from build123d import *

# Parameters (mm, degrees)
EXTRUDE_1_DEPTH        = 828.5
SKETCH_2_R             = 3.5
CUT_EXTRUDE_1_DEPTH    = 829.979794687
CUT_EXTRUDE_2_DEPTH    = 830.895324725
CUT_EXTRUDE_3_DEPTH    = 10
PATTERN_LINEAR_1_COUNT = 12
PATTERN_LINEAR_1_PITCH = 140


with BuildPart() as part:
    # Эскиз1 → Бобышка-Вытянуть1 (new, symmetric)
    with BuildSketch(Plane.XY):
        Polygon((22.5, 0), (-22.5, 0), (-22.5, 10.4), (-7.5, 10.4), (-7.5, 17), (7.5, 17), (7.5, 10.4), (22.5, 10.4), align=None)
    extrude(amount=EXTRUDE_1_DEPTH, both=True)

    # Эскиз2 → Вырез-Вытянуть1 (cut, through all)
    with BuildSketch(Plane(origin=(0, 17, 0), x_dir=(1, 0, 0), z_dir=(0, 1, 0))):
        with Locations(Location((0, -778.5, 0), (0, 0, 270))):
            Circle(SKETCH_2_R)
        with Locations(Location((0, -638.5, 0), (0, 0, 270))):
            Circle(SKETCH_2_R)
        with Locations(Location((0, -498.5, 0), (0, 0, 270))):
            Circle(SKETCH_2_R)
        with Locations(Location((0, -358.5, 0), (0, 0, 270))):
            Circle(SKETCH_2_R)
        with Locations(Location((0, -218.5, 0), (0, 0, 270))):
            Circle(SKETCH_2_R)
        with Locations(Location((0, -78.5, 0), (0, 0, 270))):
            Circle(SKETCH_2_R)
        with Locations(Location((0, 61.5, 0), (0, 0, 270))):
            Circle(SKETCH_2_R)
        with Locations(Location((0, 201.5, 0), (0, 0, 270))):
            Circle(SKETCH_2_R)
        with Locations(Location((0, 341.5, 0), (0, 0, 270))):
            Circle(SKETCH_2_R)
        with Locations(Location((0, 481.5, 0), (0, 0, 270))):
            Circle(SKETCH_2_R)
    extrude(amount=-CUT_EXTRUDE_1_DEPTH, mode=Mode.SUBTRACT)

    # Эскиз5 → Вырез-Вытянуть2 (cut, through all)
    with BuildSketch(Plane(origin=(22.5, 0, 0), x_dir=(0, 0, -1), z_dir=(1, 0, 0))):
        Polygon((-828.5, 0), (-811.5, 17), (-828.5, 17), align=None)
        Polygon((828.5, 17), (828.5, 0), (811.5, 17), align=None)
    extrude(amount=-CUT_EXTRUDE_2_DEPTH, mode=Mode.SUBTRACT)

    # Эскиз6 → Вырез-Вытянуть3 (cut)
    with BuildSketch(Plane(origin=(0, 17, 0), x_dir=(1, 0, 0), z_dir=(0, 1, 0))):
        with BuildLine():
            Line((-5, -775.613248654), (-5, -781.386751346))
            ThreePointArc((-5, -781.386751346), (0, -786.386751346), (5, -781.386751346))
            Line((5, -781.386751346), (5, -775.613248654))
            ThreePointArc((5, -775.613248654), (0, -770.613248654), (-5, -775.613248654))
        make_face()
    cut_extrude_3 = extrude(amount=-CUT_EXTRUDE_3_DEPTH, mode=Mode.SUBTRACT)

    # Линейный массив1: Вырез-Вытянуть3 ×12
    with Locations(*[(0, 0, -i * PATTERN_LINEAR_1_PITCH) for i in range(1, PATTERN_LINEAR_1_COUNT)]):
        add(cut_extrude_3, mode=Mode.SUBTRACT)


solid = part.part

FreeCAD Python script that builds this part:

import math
import FreeCAD as App
import Part
import Sketcher

doc = App.newDocument("Part")
body = doc.addObject("PartDesign::Body", "Body")

# Sketch on XY plane
sketch1 = doc.addObject("Sketcher::SketchObject", "Sketch")
body.addObject(sketch1)
sketch1.AttachmentSupport = (doc.XY_Plane, [""])
sketch1.MapMode = "FlatFace"
sketch1.addGeometry([
    Part.LineSegment(App.Vector(-22.5, 0, 0), App.Vector(22.5, 0, 0)),  # 0
    Part.LineSegment(App.Vector(22.5, 0, 0), App.Vector(22.5, 10.4, 0)),  # 1
    Part.LineSegment(App.Vector(22.5, 10.4, 0), App.Vector(7.5, 10.4, 0)),  # 2
    Part.LineSegment(App.Vector(7.5, 10.4, 0), App.Vector(7.5, 17, 0)),  # 3
    Part.LineSegment(App.Vector(7.5, 17, 0), App.Vector(-7.5, 17, 0)),  # 4
    Part.LineSegment(App.Vector(-7.5, 17, 0), App.Vector(-7.5, 10.4, 0)),  # 5
    Part.LineSegment(App.Vector(-7.5, 10.4, 0), App.Vector(-22.5, 10.4, 0)),  # 6
    Part.LineSegment(App.Vector(-22.5, 10.4, 0), App.Vector(-22.5, 0, 0)),  # 7
], False)
sketch1.addConstraint([
    Sketcher.Constraint("Coincident", 0, 2, 1, 1),
    Sketcher.Constraint("Coincident", 1, 2, 2, 1),
    Sketcher.Constraint("Coincident", 2, 2, 3, 1),
    Sketcher.Constraint("Coincident", 3, 2, 4, 1),
    Sketcher.Constraint("Coincident", 4, 2, 5, 1),
    Sketcher.Constraint("Coincident", 5, 2, 6, 1),
    Sketcher.Constraint("Coincident", 6, 2, 7, 1),
    Sketcher.Constraint("Coincident", 7, 2, 0, 1),
    Sketcher.Constraint("Horizontal", 0),
    Sketcher.Constraint("Vertical", 1),
    Sketcher.Constraint("Horizontal", 2),
    Sketcher.Constraint("Vertical", 3),
    Sketcher.Constraint("Horizontal", 4),
    Sketcher.Constraint("Vertical", 5),
    Sketcher.Constraint("Horizontal", 6),
    Sketcher.Constraint("Vertical", 7),
    Sketcher.Constraint("Symmetric", 0, 2, 7, 2, -1, 1),
    Sketcher.Constraint("Symmetric", 2, 2, 5, 2, -2),
    Sketcher.Constraint("Equal", 2, 4),
    Sketcher.Constraint("DistanceX", 0, 1, 0, 2, 45.0),
    Sketcher.Constraint("DistanceY", 1, 1, 1, 2, 10.4),
    Sketcher.Constraint("DistanceY", 3, 1, 3, 2, 6.6),
])
pad1 = doc.addObject("PartDesign::Pad", "Pad")
body.addObject(pad1)
pad1.Profile = sketch1
pad1.Length = 1657
pad1.Midplane = True

# Sketch on XZ plane
sketch2 = doc.addObject("Sketcher::SketchObject", "Sketch001")
body.addObject(sketch2)
sketch2.AttachmentSupport = (doc.XZ_Plane, [""])
sketch2.MapMode = "FlatFace"
sketch2.AttachmentOffset = App.Placement(App.Vector(0, 0, -17), App.Rotation())
sketch2.addGeometry([
    Part.Circle(App.Vector(0, 778.5, 0), App.Vector(0, 0, 1), 3.5),  # 0
    Part.Circle(App.Vector(0, 638.5, 0), App.Vector(0, 0, 1), 3.5),  # 1
    Part.Circle(App.Vector(0, 498.5, 0), App.Vector(0, 0, 1), 3.5),  # 2
    Part.Circle(App.Vector(0, 358.5, 0), App.Vector(0, 0, 1), 3.5),  # 3
    Part.Circle(App.Vector(0, 218.5, 0), App.Vector(0, 0, 1), 3.5),  # 4
    Part.Circle(App.Vector(0, 78.5, 0), App.Vector(0, 0, 1), 3.5),  # 5
    Part.Circle(App.Vector(0, -61.5, 0), App.Vector(0, 0, 1), 3.5),  # 6
    Part.Circle(App.Vector(0, -201.5, 0), App.Vector(0, 0, 1), 3.5),  # 7
    Part.Circle(App.Vector(0, -341.5, 0), App.Vector(0, 0, 1), 3.5),  # 8
    Part.Circle(App.Vector(0, -481.5, 0), App.Vector(0, 0, 1), 3.5),  # 9
], False)
sketch2.addConstraint([
    Sketcher.Constraint("Equal", 0, 1),
    Sketcher.Constraint("Equal", 1, 2),
    Sketcher.Constraint("Equal", 2, 3),
    Sketcher.Constraint("Equal", 3, 4),
    Sketcher.Constraint("Equal", 4, 5),
    Sketcher.Constraint("Equal", 5, 6),
    Sketcher.Constraint("Equal", 6, 7),
    Sketcher.Constraint("Equal", 7, 8),
    Sketcher.Constraint("Equal", 8, 9),
    Sketcher.Constraint("PointOnObject", 0, 3, -2),
    Sketcher.Constraint("PointOnObject", 1, 3, -2),
    Sketcher.Constraint("PointOnObject", 2, 3, -2),
    Sketcher.Constraint("PointOnObject", 3, 3, -2),
    Sketcher.Constraint("PointOnObject", 4, 3, -2),
    Sketcher.Constraint("PointOnObject", 5, 3, -2),
    Sketcher.Constraint("PointOnObject", 6, 3, -2),
    Sketcher.Constraint("PointOnObject", 7, 3, -2),
    Sketcher.Constraint("PointOnObject", 8, 3, -2),
    Sketcher.Constraint("PointOnObject", 9, 3, -2),
    Sketcher.Constraint("Diameter", 0, 7.0),
    Sketcher.Constraint("DistanceY", 1, 3, 0, 3, 140.0),
    Sketcher.Constraint("DistanceY", 2, 3, 1, 3, 140.0),
    Sketcher.Constraint("DistanceY", 3, 3, 2, 3, 140.0),
    Sketcher.Constraint("DistanceY", 4, 3, 3, 3, 140.0),
    Sketcher.Constraint("DistanceY", 5, 3, 4, 3, 140.0),
    Sketcher.Constraint("DistanceY", 6, 3, 5, 3, 140.0),
    Sketcher.Constraint("DistanceY", 7, 3, 6, 3, 140.0),
    Sketcher.Constraint("DistanceY", 8, 3, 7, 3, 140.0),
    Sketcher.Constraint("DistanceY", 9, 3, 8, 3, 140.0),
    Sketcher.Constraint("DistanceY", -1, 1, 0, 3, 778.5),
])
pocket1 = doc.addObject("PartDesign::Pocket", "Pocket")
body.addObject(pocket1)
pocket1.Profile = sketch2
pocket1.Type = "ThroughAll"
pocket1.Reversed = True

# Sketch on YZ plane
sketch3 = doc.addObject("Sketcher::SketchObject", "Sketch002")
body.addObject(sketch3)
sketch3.AttachmentSupport = (doc.YZ_Plane, [""])
sketch3.MapMode = "FlatFace"
sketch3.AttachmentOffset = App.Placement(App.Vector(0, 0, 22.5), App.Rotation())
sketch3.addGeometry([
    Part.LineSegment(App.Vector(0, 828.5, 0), App.Vector(17, 811.5, 0)),  # 0
    Part.LineSegment(App.Vector(17, 811.5, 0), App.Vector(17, 828.5, 0)),  # 1
    Part.LineSegment(App.Vector(17, 828.5, 0), App.Vector(0, 828.5, 0)),  # 2
    Part.LineSegment(App.Vector(0, -828.5, 0), App.Vector(17, -828.5, 0)),  # 3
    Part.LineSegment(App.Vector(17, -828.5, 0), App.Vector(17, -811.5, 0)),  # 4
    Part.LineSegment(App.Vector(17, -811.5, 0), App.Vector(0, -828.5, 0)),  # 5
], False)
sketch3.addConstraint([
    Sketcher.Constraint("Coincident", 0, 2, 1, 1),
    Sketcher.Constraint("Coincident", 1, 2, 2, 1),
    Sketcher.Constraint("Coincident", 2, 2, 0, 1),
    Sketcher.Constraint("Coincident", 3, 2, 4, 1),
    Sketcher.Constraint("Coincident", 4, 2, 5, 1),
    Sketcher.Constraint("Coincident", 5, 2, 3, 1),
    Sketcher.Constraint("Vertical", 1),
    Sketcher.Constraint("Horizontal", 2),
    Sketcher.Constraint("Horizontal", 3),
    Sketcher.Constraint("Vertical", 4),
    Sketcher.Constraint("Symmetric", 2, 2, 5, 2, -1, 1),
    Sketcher.Constraint("Symmetric", 0, 2, 4, 2, -1),
    Sketcher.Constraint("PointOnObject", 2, 2, -2),
    Sketcher.Constraint("Perpendicular", 0, 5),
    Sketcher.Constraint("DistanceX", 2, 2, 2, 1, 17.0),
    Sketcher.Constraint("DistanceY", 3, 2, 0, 2, 1640.0),
])
pocket2 = doc.addObject("PartDesign::Pocket", "Pocket001")
body.addObject(pocket2)
pocket2.Profile = sketch3
pocket2.Type = "ThroughAll"

# Sketch on XZ plane
sketch4 = doc.addObject("Sketcher::SketchObject", "Sketch003")
body.addObject(sketch4)
sketch4.AttachmentSupport = (doc.XZ_Plane, [""])
sketch4.MapMode = "FlatFace"
sketch4.AttachmentOffset = App.Placement(App.Vector(0, 0, -17), App.Rotation())
sketch4.addGeometry([
    Part.LineSegment(App.Vector(-5, 775.613249, 0), App.Vector(-5, 781.386751, 0)),
    Part.ArcOfCircle(Part.Circle(App.Vector(0, 781.386751, 0), App.Vector(0, 0, 1), 5), math.radians(0), math.radians(180)),
    Part.LineSegment(App.Vector(5, 781.386751, 0), App.Vector(5, 775.613249, 0)),
    Part.ArcOfCircle(Part.Circle(App.Vector(0, 775.613249, 0), App.Vector(0, 0, 1), 5), math.radians(180), math.radians(360)),
], False)
sketch4.addConstraint([
    Sketcher.Constraint("Tangent", 0, 2, 1, 2),
    Sketcher.Constraint("Tangent", 1, 1, 2, 1),
    Sketcher.Constraint("Tangent", 2, 2, 3, 2),
    Sketcher.Constraint("Tangent", 3, 1, 0, 1),
    Sketcher.Constraint("Vertical", 0),
    Sketcher.Constraint("Vertical", 2),
    Sketcher.Constraint("PointOnObject", 1, 3, -2),
    Sketcher.Constraint("Radius", 1, 5.0),
    Sketcher.Constraint("DistanceY", 0, 1, 0, 2, 5.773503),
    Sketcher.Constraint("DistanceY", -1, 1, 1, 3, 781.386751),
])
pocket3 = doc.addObject("PartDesign::Pocket", "Pocket002")
body.addObject(pocket3)
pocket3.Profile = sketch4
pocket3.Length = 10
pocket3.Reversed = True
doc.recompute()

linearpattern = doc.addObject("PartDesign::LinearPattern", "LinearPattern")
body.addObject(linearpattern)
linearpattern.Originals = [pocket3]
linearpattern.Direction = (doc.Z_Axis, [""])
linearpattern.Mode = "offset"
linearpattern.Offset = 140
linearpattern.Occurrences = 12
linearpattern.Reversed = True
body.Tip = linearpattern

doc.recompute()
